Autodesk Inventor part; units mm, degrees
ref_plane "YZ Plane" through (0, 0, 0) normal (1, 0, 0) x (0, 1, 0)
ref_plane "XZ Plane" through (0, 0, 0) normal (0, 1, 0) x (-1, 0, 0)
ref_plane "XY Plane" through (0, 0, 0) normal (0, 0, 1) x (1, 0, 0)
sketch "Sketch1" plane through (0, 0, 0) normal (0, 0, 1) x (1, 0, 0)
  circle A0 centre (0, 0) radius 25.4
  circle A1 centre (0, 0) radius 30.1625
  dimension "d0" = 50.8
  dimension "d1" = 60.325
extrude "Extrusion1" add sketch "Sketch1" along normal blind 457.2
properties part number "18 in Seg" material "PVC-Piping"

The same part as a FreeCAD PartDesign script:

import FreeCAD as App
import Part
import Sketcher
from FreeCAD import Vector
Q = App.Units.Quantity

doc = App.newDocument("Part")
params = doc.addObject("Spreadsheet::Sheet", "Params")
for row, (alias, value) in enumerate([
    ("sketch1_diameter", "2 in"),
    ("sketch1_diameter2", "2.375 in"),
    ("pad1_length", "18 in"),
], start=1):
    params.set(f"A{row}", alias)
    params.set(f"B{row}", "=" + value)
    params.setAlias(f"B{row}", alias)

body = doc.addObject("PartDesign::Body", "Body")

# Sketch on XY plane
sketch1 = body.newObject("Sketcher::SketchObject", "Sketch")
sketch1.AttachmentSupport = (doc.getObject("XY_Plane"), [""])
sketch1.MapMode = "FlatFace"
sketch1.addGeometry(Part.Circle(Vector(0, 0, 0), Vector(0, 0, 1), 30), False)
sketch1.addGeometry(Part.Circle(Vector(0, 0, 0), Vector(0, 0, 1), 25), False)
sketch1.addConstraint(Sketcher.Constraint("Coincident", 0, 3, -1, 1))
sketch1.addConstraint(Sketcher.Constraint("Coincident", 1, 3, -1, 1))
sketch1.addConstraint(Sketcher.Constraint("Diameter", 1, Q("2 in")))
sketch1.addConstraint(Sketcher.Constraint("Diameter", 0, Q("2.375 in")))
sketch1.setExpression("Constraints[2]", "Params.sketch1_diameter")
sketch1.setExpression("Constraints[3]", "Params.sketch1_diameter2")
pad1 = body.newObject("PartDesign::Pad", "Pad")
pad1.Profile = sketch1
pad1.setExpression("Length", "Params.pad1_length")

doc.recompute()
